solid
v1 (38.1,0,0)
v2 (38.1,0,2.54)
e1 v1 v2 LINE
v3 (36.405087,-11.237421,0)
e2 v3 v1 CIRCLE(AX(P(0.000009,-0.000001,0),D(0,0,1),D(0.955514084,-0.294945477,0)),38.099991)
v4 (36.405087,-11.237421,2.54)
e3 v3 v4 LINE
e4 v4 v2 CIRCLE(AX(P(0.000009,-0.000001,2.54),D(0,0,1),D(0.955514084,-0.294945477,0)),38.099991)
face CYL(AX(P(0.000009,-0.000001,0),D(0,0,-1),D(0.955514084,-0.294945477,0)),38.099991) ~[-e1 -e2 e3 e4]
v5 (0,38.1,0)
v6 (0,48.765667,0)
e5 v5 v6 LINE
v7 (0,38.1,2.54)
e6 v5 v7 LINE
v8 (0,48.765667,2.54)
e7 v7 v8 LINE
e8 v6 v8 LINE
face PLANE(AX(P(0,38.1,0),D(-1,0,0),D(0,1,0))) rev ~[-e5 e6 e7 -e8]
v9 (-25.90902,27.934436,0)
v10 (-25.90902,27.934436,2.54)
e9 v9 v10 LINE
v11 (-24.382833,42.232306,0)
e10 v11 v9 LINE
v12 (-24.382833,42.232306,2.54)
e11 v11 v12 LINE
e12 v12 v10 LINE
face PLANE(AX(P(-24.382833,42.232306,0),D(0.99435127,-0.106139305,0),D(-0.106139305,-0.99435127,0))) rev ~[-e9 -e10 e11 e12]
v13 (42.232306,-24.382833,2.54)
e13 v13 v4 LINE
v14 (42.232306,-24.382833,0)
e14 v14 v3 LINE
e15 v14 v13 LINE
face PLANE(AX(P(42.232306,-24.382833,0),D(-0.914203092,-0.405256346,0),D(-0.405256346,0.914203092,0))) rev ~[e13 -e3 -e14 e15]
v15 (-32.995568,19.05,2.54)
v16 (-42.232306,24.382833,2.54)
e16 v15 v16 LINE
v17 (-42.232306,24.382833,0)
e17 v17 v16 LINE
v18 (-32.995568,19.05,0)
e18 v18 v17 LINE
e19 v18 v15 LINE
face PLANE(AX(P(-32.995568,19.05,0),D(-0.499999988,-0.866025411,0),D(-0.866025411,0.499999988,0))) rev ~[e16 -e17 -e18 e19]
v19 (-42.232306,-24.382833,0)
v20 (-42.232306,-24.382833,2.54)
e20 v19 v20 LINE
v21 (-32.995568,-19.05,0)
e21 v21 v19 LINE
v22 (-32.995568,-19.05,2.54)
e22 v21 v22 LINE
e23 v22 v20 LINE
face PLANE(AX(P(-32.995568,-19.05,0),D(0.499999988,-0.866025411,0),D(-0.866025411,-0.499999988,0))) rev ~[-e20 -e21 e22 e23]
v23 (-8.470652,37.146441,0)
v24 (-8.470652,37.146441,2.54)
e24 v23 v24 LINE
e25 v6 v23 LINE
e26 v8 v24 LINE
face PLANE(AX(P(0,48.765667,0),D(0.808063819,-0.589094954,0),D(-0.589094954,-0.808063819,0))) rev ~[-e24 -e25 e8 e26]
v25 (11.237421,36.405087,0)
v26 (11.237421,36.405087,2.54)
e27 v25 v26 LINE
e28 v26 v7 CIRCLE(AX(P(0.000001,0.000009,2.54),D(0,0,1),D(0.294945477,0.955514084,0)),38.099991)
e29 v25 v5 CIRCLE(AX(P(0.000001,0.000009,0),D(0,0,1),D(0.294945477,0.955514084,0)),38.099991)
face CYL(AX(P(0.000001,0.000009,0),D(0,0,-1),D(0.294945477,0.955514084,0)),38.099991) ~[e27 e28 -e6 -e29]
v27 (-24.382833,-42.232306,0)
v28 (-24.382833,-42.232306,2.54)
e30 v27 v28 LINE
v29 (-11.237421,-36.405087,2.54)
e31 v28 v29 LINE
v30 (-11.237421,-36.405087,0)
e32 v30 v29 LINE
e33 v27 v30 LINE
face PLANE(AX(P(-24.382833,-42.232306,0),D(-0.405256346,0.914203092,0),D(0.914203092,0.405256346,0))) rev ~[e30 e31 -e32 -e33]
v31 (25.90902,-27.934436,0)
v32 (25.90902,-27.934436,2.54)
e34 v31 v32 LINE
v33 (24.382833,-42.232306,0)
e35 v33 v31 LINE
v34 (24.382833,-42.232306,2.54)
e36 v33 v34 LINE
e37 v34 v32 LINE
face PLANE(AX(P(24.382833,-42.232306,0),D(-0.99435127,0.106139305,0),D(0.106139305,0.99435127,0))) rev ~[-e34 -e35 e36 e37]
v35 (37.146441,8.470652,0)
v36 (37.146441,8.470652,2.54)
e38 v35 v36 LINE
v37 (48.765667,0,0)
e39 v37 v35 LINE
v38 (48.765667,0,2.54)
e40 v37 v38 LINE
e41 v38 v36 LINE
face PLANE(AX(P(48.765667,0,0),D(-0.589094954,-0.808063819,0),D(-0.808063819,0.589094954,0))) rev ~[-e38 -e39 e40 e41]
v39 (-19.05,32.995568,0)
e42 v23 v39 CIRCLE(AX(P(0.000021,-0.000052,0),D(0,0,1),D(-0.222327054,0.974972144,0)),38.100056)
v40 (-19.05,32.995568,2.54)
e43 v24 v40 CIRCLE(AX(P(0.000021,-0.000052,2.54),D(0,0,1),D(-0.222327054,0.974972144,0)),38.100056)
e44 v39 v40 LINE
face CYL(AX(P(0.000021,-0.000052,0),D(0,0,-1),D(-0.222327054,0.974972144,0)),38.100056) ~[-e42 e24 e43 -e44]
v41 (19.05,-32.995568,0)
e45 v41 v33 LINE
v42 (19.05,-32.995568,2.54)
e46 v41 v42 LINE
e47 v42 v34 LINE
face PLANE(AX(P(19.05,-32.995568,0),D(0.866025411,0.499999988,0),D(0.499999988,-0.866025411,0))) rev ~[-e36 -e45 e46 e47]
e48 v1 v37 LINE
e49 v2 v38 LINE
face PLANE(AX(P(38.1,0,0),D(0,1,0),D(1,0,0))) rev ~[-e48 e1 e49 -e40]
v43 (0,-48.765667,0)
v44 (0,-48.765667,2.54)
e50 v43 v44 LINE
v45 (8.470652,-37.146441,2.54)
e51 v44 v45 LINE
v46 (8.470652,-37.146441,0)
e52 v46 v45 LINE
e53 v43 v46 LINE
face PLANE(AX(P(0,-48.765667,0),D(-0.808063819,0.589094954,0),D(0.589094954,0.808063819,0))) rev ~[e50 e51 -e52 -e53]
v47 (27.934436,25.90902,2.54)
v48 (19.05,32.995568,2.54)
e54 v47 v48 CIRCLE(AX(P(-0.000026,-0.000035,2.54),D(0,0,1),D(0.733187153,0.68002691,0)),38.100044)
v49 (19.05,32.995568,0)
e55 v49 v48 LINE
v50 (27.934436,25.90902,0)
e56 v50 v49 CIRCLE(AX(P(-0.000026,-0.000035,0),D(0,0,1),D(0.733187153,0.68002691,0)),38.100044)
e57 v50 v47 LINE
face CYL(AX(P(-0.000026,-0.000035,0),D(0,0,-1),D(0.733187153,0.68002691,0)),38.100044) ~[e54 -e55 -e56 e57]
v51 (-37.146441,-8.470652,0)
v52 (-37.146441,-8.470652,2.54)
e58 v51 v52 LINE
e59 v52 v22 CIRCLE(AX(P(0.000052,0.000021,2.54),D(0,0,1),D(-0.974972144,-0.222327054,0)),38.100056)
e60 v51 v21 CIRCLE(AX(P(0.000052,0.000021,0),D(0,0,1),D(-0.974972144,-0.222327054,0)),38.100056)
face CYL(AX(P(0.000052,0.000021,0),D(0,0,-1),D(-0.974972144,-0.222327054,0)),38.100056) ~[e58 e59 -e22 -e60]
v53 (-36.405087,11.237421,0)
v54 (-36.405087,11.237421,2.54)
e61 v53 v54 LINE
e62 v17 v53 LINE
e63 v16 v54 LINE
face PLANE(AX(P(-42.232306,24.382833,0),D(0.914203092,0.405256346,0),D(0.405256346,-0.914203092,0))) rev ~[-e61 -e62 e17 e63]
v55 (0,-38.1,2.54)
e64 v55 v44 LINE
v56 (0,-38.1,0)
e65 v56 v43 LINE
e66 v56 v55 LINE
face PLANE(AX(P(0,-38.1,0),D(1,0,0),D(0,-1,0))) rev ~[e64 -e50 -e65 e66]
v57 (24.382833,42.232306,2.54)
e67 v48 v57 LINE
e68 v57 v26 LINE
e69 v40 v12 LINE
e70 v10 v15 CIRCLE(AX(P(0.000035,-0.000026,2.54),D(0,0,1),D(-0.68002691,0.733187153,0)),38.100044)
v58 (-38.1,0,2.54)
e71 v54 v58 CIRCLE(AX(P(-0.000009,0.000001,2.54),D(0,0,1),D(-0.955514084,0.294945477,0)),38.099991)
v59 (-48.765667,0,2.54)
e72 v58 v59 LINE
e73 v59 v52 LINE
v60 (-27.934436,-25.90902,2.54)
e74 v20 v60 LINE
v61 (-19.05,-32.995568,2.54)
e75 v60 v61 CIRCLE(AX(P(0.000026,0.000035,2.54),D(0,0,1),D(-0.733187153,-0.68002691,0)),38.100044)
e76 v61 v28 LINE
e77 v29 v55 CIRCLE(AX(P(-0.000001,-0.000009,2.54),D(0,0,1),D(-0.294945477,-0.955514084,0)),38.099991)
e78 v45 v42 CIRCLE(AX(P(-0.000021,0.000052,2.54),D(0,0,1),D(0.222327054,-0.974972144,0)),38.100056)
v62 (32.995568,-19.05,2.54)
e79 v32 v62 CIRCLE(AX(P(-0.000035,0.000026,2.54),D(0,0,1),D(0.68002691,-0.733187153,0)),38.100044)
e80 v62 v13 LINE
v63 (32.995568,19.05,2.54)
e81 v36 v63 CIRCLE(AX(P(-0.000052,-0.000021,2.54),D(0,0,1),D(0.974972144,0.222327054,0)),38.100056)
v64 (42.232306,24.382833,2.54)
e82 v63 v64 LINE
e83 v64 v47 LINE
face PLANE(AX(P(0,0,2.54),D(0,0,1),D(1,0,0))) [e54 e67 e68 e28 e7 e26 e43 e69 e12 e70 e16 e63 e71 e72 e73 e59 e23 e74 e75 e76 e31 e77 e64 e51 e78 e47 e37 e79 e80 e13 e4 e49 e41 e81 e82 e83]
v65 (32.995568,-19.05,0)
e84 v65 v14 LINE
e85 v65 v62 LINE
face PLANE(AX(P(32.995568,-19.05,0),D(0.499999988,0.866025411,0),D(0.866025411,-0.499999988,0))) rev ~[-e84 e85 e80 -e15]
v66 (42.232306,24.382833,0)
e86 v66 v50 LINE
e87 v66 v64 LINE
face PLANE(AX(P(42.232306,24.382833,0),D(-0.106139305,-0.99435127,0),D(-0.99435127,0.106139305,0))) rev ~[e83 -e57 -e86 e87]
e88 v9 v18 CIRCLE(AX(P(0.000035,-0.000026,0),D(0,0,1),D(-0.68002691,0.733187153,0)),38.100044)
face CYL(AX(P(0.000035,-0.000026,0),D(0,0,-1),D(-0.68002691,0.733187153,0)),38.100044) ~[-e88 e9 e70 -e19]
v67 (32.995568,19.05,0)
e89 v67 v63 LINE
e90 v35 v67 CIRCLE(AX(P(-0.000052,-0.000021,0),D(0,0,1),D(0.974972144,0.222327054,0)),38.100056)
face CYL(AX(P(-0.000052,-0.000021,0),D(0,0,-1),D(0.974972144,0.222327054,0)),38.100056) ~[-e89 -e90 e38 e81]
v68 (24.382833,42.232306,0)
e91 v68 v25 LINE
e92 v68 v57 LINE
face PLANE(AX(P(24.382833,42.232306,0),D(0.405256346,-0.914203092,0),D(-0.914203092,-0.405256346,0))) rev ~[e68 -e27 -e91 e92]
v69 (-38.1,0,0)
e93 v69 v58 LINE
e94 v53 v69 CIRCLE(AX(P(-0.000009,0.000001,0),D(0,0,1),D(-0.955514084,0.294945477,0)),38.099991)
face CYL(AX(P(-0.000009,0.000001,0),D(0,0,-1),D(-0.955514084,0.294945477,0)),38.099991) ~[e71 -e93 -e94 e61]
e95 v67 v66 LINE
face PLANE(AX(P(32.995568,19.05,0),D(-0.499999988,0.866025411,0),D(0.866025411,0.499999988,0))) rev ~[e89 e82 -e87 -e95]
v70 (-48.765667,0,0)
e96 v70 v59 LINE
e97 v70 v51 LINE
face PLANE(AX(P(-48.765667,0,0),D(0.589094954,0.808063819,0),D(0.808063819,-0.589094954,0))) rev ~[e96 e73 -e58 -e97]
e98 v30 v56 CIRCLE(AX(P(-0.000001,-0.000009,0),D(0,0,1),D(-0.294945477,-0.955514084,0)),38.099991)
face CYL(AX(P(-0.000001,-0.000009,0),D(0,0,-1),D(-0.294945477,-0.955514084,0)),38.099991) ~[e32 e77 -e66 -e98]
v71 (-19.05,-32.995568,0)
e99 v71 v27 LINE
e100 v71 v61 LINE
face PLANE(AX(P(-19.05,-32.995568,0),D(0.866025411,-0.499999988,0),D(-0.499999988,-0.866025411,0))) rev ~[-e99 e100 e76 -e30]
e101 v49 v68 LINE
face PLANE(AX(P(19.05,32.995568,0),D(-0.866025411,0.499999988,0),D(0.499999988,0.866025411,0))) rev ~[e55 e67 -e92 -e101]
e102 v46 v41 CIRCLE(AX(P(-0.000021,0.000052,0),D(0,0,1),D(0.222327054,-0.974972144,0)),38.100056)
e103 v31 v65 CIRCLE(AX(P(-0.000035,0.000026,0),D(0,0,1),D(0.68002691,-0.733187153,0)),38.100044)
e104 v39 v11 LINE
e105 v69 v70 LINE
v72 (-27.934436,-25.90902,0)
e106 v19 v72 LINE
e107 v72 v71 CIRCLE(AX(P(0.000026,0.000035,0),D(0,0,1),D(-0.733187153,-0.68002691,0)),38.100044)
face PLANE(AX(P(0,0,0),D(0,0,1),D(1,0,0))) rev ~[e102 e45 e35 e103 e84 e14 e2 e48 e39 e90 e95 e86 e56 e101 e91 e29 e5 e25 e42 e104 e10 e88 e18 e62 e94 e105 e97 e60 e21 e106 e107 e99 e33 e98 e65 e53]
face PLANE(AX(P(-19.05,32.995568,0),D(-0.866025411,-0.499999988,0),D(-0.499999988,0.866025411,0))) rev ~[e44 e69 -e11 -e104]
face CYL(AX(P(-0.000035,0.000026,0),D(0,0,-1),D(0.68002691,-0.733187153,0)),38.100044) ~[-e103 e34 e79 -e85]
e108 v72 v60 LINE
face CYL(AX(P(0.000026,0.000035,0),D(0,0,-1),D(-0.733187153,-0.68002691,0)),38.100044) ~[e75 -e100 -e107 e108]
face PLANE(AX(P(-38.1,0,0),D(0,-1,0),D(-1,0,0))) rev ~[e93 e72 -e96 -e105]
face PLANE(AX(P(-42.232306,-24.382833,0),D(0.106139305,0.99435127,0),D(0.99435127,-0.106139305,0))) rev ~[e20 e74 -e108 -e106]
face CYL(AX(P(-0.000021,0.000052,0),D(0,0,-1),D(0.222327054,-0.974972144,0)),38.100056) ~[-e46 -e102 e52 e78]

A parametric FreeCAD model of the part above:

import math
import FreeCAD as App
import Part
import Sketcher
Q = App.Units.Quantity

doc = App.newDocument("Part")
params = doc.addObject("Spreadsheet::Sheet", "Params")
for row, (alias, value) in enumerate([
    ("pad1_length", "0.1 in"),
], start=1):
    params.set(f"A{row}", alias)
    params.set(f"B{row}", "=" + value)
    params.setAlias(f"B{row}", alias)

body = doc.addObject("PartDesign::Body", "Body")

# Sketch on XY plane
sketch1 = body.newObject("Sketcher::SketchObject", "Sketch")
sketch1.AttachmentSupport = (doc.getObject("XY_Plane"), [""])
sketch1.MapMode = "FlatFace"
sketch1.addGeometry([
    Part.ArcOfCircle(Part.Circle(App.Vector(0.000009, -0.000001, 0), App.Vector(0, 0, 1), 38.099991), math.radians(-17.154268), math.radians(0.000001)),  # 0
    Part.LineSegment(App.Vector(38.1, 0, 0), App.Vector(48.765667, 0, 0)),  # 1
    Part.LineSegment(App.Vector(48.765667, 0, 0), App.Vector(37.146441, 8.470652, 0)),  # 2
    Part.ArcOfCircle(Part.Circle(App.Vector(-0.000052, -0.000021, 0), App.Vector(0, 0, 1), 38.100056), math.radians(12.845749), math.radians(29.999988)),  # 3
    Part.LineSegment(App.Vector(32.995568, 19.05, 0), App.Vector(42.232306, 24.382833, 0)),  # 4
    Part.LineSegment(App.Vector(42.232306, 24.382833, 0), App.Vector(27.934436, 25.90902, 0)),  # 5
    Part.ArcOfCircle(Part.Circle(App.Vector(-0.000026, -0.000035, 0), App.Vector(0, 0, 1), 38.100044), math.radians(42.845746), math.radians(59.999992)),  # 6
    Part.LineSegment(App.Vector(19.05, 32.995568, 0), App.Vector(24.382833, 42.232306, 0)),  # 7
    Part.LineSegment(App.Vector(24.382833, 42.232306, 0), App.Vector(11.237421, 36.405087, 0)),  # 8
    Part.ArcOfCircle(Part.Circle(App.Vector(0.000001, 0.000009, 0), App.Vector(0, 0, 1), 38.099991), math.radians(72.845732), math.radians(90.000001)),  # 9
    Part.LineSegment(App.Vector(0, 38.1, 0), App.Vector(0, 48.765667, 0)),  # 10
    Part.LineSegment(App.Vector(0, 48.765667, 0), App.Vector(-8.470652, 37.146441, 0)),  # 11
    Part.ArcOfCircle(Part.Circle(App.Vector(0.000021, -0.000052, 0), App.Vector(0, 0, 1), 38.100056), math.radians(102.845749), math.radians(119.999988)),  # 12
    Part.LineSegment(App.Vector(-19.05, 32.995568, 0), App.Vector(-24.382833, 42.232306, 0)),  # 13
    Part.LineSegment(App.Vector(-24.382833, 42.232306, 0), App.Vector(-25.90902, 27.934436, 0)),  # 14
    Part.ArcOfCircle(Part.Circle(App.Vector(0.000035, -0.000026, 0), App.Vector(0, 0, 1), 38.100044), math.radians(132.845746), math.radians(149.999992)),  # 15
    Part.LineSegment(App.Vector(-32.995568, 19.05, 0), App.Vector(-42.232306, 24.382833, 0)),  # 16
    Part.LineSegment(App.Vector(-42.232306, 24.382833, 0), App.Vector(-36.405087, 11.237421, 0)),  # 17
    Part.ArcOfCircle(Part.Circle(App.Vector(-0.000009, 0.000001, 0), App.Vector(0, 0, 1), 38.099991), math.radians(162.845732), math.radians(180.000001)),  # 18
    Part.LineSegment(App.Vector(-38.1, 0, 0), App.Vector(-48.765667, 0, 0)),  # 19
    Part.LineSegment(App.Vector(-48.765667, 0, 0), App.Vector(-37.146441, -8.470652, 0)),  # 20
    Part.ArcOfCircle(Part.Circle(App.Vector(0.000052, 0.000021, 0), App.Vector(0, 0, 1), 38.100056), math.radians(-167.154251), math.radians(-150.000012)),  # 21
    Part.LineSegment(App.Vector(-32.995568, -19.05, 0), App.Vector(-42.232306, -24.382833, 0)),  # 22
    Part.LineSegment(App.Vector(-42.232306, -24.382833, 0), App.Vector(-27.934436, -25.90902, 0)),  # 23
    Part.ArcOfCircle(Part.Circle(App.Vector(0.000026, 0.000035, 0), App.Vector(0, 0, 1), 38.100044), math.radians(-137.154254), math.radians(-120.000008)),  # 24
    Part.LineSegment(App.Vector(-19.05, -32.995568, 0), App.Vector(-24.382833, -42.232306, 0)),  # 25
    Part.LineSegment(App.Vector(-24.382833, -42.232306, 0), App.Vector(-11.237421, -36.405087, 0)),  # 26
    Part.ArcOfCircle(Part.Circle(App.Vector(-0.000001, -0.000009, 0), App.Vector(0, 0, 1), 38.099991), math.radians(-107.154268), math.radians(-89.999999)),  # 27
    Part.LineSegment(App.Vector(0, -38.1, 0), App.Vector(0, -48.765667, 0)),  # 28
    Part.LineSegment(App.Vector(0, -48.765667, 0), App.Vector(8.470652, -37.146441, 0)),  # 29
    Part.ArcOfCircle(Part.Circle(App.Vector(-0.000021, 0.000052, 0), App.Vector(0, 0, 1), 38.100056), math.radians(-77.154251), math.radians(-60.000012)),  # 30
    Part.LineSegment(App.Vector(19.05, -32.995568, 0), App.Vector(24.382833, -42.232306, 0)),  # 31
    Part.LineSegment(App.Vector(24.382833, -42.232306, 0), App.Vector(25.90902, -27.934436, 0)),  # 32
    Part.ArcOfCircle(Part.Circle(App.Vector(-0.000035, 0.000026, 0), App.Vector(0, 0, 1), 38.100044), math.radians(-47.154254), math.radians(-30.000008)),  # 33
    Part.LineSegment(App.Vector(32.995568, -19.05, 0), App.Vector(42.232306, -24.382833, 0)),  # 34
    Part.LineSegment(App.Vector(42.232306, -24.382833, 0), App.Vector(36.405087, -11.237421, 0)),  # 35
], False)
sketch1.addConstraint([
    Sketcher.Constraint("Coincident", 0, 2, 1, 1),
    Sketcher.Constraint("Coincident", 1, 2, 2, 1),
    Sketcher.Constraint("Coincident", 2, 2, 3, 1),
    Sketcher.Constraint("Coincident", 3, 2, 4, 1),
    Sketcher.Constraint("Coincident", 4, 2, 5, 1),
    Sketcher.Constraint("Coincident", 5, 2, 6, 1),
    Sketcher.Constraint("Coincident", 6, 2, 7, 1),
    Sketcher.Constraint("Coincident", 7, 2, 8, 1),
    Sketcher.Constraint("Coincident", 8, 2, 9, 1),
    Sketcher.Constraint("Coincident", 9, 2, 10, 1),
    Sketcher.Constraint("Coincident", 10, 2, 11, 1),
    Sketcher.Constraint("Coincident", 11, 2, 12, 1),
    Sketcher.Constraint("Coincident", 12, 2, 13, 1),
    Sketcher.Constraint("Coincident", 13, 2, 14, 1),
    Sketcher.Constraint("Coincident", 14, 2, 15, 1),
    Sketcher.Constraint("Coincident", 15, 2, 16, 1),
    Sketcher.Constraint("Coincident", 16, 2, 17, 1),
    Sketcher.Constraint("Coincident", 17, 2, 18, 1),
    Sketcher.Constraint("Coincident", 18, 2, 19, 1),
    Sketcher.Constraint("Coincident", 19, 2, 20, 1),
    Sketcher.Constraint("Coincident", 20, 2, 21, 1),
    Sketcher.Constraint("Coincident", 21, 2, 22, 1),
    Sketcher.Constraint("Coincident", 22, 2, 23, 1),
    Sketcher.Constraint("Coincident", 23, 2, 24, 1),
    Sketcher.Constraint("Coincident", 24, 2, 25, 1),
    Sketcher.Constraint("Coincident", 25, 2, 26, 1),
    Sketcher.Constraint("Coincident", 26, 2, 27, 1),
    Sketcher.Constraint("Coincident", 27, 2, 28, 1),
    Sketcher.Constraint("Coincident", 28, 2, 29, 1),
    Sketcher.Constraint("Coincident", 29, 2, 30, 1),
    Sketcher.Constraint("Coincident", 30, 2, 31, 1),
    Sketcher.Constraint("Coincident", 31, 2, 32, 1),
    Sketcher.Constraint("Coincident", 32, 2, 33, 1),
    Sketcher.Constraint("Coincident", 33, 2, 34, 1),
    Sketcher.Constraint("Coincident", 34, 2, 35, 1),
    Sketcher.Constraint("Coincident", 35, 2, 0, 1),
    Sketcher.Constraint("Horizontal", 1),
    Sketcher.Constraint("Vertical", 10),
    Sketcher.Constraint("Horizontal", 19),
    Sketcher.Constraint("Vertical", 28),
    Sketcher.Constraint("Coincident", 0, 3, -1, 1),
    Sketcher.Constraint("Coincident", 9, 3, -1, 1),
    Sketcher.Constraint("Coincident", 18, 3, -1, 1),
    Sketcher.Constraint("Coincident", 27, 3, -1, 1),
    Sketcher.Constraint("Equal", 0, 9),
    Sketcher.Constraint("Equal", 3, 12),
    Sketcher.Constraint("Equal", 6, 15),
    Sketcher.Constraint("Equal", 9, 18),
    Sketcher.Constraint("Equal", 12, 21),
    Sketcher.Constraint("Equal", 15, 24),
    Sketcher.Constraint("Equal", 18, 27),
    Sketcher.Constraint("Equal", 21, 30),
    Sketcher.Constraint("Equal", 24, 33),
    Sketcher.Constraint("Symmetric", 3, 3, 21, 3, -1, 1),
    Sketcher.Constraint("Symmetric", 6, 3, 24, 3, -1, 1),
    Sketcher.Constraint("Symmetric", 12, 3, 30, 3, -1, 1),
    Sketcher.Constraint("Symmetric", 15, 3, 33, 3, -1, 1),
    Sketcher.Constraint("Symmetric", 1, 2, 19, 2, -1, 1),
    Sketcher.Constraint("Symmetric", 4, 2, 22, 2, -1, 1),
    Sketcher.Constraint("Symmetric", 7, 2, 25, 2, -1, 1),
    Sketcher.Constraint("Symmetric", 10, 2, 28, 2, -1, 1),
    Sketcher.Constraint("Symmetric", 13, 2, 31, 2, -1, 1),
    Sketcher.Constraint("Symmetric", 16, 2, 34, 2, -1, 1),
    Sketcher.Constraint("Symmetric", 6, 2, 12, 2, -2),
    Sketcher.Constraint("Symmetric", 7, 2, 13, 2, -2),
    Sketcher.Constraint("Symmetric", 3, 2, 15, 2, -2),
    Sketcher.Constraint("Symmetric", 4, 2, 16, 2, -2),
    Sketcher.Constraint("PointOnObject", 0, 2, -1),
    Sketcher.Constraint("PointOnObject", 9, 2, -2),
    Sketcher.Constraint("Perpendicular", 2, 11),
    Sketcher.Constraint("Perpendicular", 4, 13),
    Sketcher.Constraint("Perpendicular", 5, 14),
    Sketcher.Constraint("Perpendicular", 8, 17),
    Sketcher.Constraint("Perpendicular", 11, 20),
    Sketcher.Constraint("Perpendicular", 13, 22),
    Sketcher.Constraint("Perpendicular", 14, 23),
    Sketcher.Constraint("Perpendicular", 16, 25),
    Sketcher.Constraint("Perpendicular", 17, 26),
    Sketcher.Constraint("Perpendicular", 20, 29),
    Sketcher.Constraint("Perpendicular", 22, 31),
    Sketcher.Constraint("Perpendicular", 23, 32),
    Sketcher.Constraint("Perpendicular", 25, 34),
    Sketcher.Constraint("Perpendicular", 26, 35),
    Sketcher.Constraint("Equal", 19, 10),
    Sketcher.Constraint("Equal", 2, 5),
    Sketcher.Constraint("Equal", 4, 7),
    Sketcher.Constraint("Equal", 5, 8),
    Sketcher.Constraint("Equal", 8, 11),
    Sketcher.Constraint("Equal", 11, 14),
    Sketcher.Constraint("Equal", 14, 17),
    Sketcher.Constraint("Angle", 4, Q("29.999999 deg")),
    Sketcher.Constraint("DistanceX", -1, 1, 0, 2, Q("1.5 in")),
    Sketcher.Constraint("DistanceY", -1, 1, 3, 2, Q("0.75 in")),
    Sketcher.Constraint("DistanceX", -1, 1, 6, 2, Q("0.75 in")),
    Sketcher.Constraint("Radius", 3, 38.100056),
    Sketcher.Constraint("Radius", 6, 38.100044),
    Sketcher.Constraint("DistanceX", 3, 2, 1, 2, 15.770099),
    Sketcher.Constraint("DistanceX", 1, 1, 1, 2, 10.665667),
    Sketcher.Constraint("DistanceX", -1, 1, 2, 2, 37.146441),
    Sketcher.Constraint("DistanceY", -1, 1, 5, 2, 25.90902),
    Sketcher.Constraint("DistanceX", -1, 1, 8, 2, 11.237421),
    Sketcher.Constraint("DistanceX", 21, 3, 0, 2, 38.099948),
])
pad1 = body.newObject("PartDesign::Pad", "Pad")
pad1.Profile = sketch1
pad1.setExpression("Length", "Params.pad1_length")

doc.recompute()
